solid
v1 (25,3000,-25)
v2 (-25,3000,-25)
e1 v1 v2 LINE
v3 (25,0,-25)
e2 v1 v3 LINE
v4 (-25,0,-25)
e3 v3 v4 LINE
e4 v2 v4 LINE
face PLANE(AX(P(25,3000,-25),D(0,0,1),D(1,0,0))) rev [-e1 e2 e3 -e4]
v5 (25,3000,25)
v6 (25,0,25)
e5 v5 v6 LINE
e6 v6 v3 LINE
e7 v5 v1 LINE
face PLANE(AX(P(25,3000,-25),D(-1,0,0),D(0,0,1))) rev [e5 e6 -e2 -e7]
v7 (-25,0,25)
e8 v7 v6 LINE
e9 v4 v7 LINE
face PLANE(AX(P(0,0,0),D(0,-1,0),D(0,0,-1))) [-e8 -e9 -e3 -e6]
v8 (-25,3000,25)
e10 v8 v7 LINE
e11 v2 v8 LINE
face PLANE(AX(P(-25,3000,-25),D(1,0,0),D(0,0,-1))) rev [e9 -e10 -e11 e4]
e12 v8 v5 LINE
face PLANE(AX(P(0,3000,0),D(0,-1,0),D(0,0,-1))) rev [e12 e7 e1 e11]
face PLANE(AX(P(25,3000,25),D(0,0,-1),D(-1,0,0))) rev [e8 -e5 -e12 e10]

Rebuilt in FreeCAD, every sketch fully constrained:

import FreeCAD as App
import Part
import Sketcher
Q = App.Units.Quantity

doc = App.newDocument("Part")
body = doc.addObject("PartDesign::Body", "Body")

# Sketch on XZ plane
sketch1 = doc.addObject("Sketcher::SketchObject", "Sketch")
body.addObject(sketch1)
sketch1.AttachmentSupport = (doc.XZ_Plane, [""])
sketch1.MapMode = "FlatFace"
sketch1.addGeometry(Part.LineSegment(App.Vector(-25, -25, 0), App.Vector(-25, 25, 0)), False)
sketch1.addGeometry(Part.LineSegment(App.Vector(-25, 25, 0), App.Vector(25, 25, 0)), False)
sketch1.addGeometry(Part.LineSegment(App.Vector(25, 25, 0), App.Vector(25, -25, 0)), False)
sketch1.addGeometry(Part.LineSegment(App.Vector(25, -25, 0), App.Vector(-25, -25, 0)), False)
sketch1.addConstraint(Sketcher.Constraint("Coincident", 0, 2, 1, 1))
sketch1.addConstraint(Sketcher.Constraint("Coincident", 1, 2, 2, 1))
sketch1.addConstraint(Sketcher.Constraint("Coincident", 2, 2, 3, 1))
sketch1.addConstraint(Sketcher.Constraint("Coincident", 3, 2, 0, 1))
sketch1.addConstraint(Sketcher.Constraint("Vertical", 0))
sketch1.addConstraint(Sketcher.Constraint("Horizontal", 1))
sketch1.addConstraint(Sketcher.Constraint("Vertical", 2))
sketch1.addConstraint(Sketcher.Constraint("Horizontal", 3))
sketch1.addConstraint(Sketcher.Constraint("Symmetric", 0, 2, 2, 2, -1, 1))
sketch1.addConstraint(Sketcher.Constraint("Equal", 3, 0))
sketch1.addConstraint(Sketcher.Constraint("DistanceX", 1, 1, 1, 2, Q("50 mm")))
pad1 = doc.addObject("PartDesign::Pad", "Pad")
body.addObject(pad1)
pad1.Profile = sketch1
pad1.Length = 3000
pad1.Reversed = True

doc.recompute()
